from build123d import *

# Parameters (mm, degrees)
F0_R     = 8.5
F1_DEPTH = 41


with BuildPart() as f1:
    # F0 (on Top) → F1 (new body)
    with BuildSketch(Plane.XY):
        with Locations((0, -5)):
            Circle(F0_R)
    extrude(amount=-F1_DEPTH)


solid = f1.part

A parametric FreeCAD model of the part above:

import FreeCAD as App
import Part
import Sketcher
from FreeCAD import Vector
Q = App.Units.Quantity

doc = App.newDocument("Part")
body = doc.addObject("PartDesign::Body", "Body")

# Sketch on XY plane
sketch1 = body.newObject("Sketcher::SketchObject", "Sketch")
sketch1.AttachmentSupport = (doc.getObject("XY_Plane"), [""])
sketch1.MapMode = "FlatFace"
sketch1.addGeometry(Part.Circle(Vector(0, -5, 0), Vector(0, 0, 1), 8), False)
sketch1.addConstraint(Sketcher.Constraint("PointOnObject", 0, 3, -2))
sketch1.addConstraint(Sketcher.Constraint("Diameter", 0, Q("17 mm")))
sketch1.addConstraint(Sketcher.Constraint("DistanceY", 0, 3, -1, 1, Q("5 mm")))
pad1 = body.newObject("PartDesign::Pad", "Pad")
pad1.Profile = sketch1
pad1.Length = 41
pad1.Reversed = True

doc.recompute()
